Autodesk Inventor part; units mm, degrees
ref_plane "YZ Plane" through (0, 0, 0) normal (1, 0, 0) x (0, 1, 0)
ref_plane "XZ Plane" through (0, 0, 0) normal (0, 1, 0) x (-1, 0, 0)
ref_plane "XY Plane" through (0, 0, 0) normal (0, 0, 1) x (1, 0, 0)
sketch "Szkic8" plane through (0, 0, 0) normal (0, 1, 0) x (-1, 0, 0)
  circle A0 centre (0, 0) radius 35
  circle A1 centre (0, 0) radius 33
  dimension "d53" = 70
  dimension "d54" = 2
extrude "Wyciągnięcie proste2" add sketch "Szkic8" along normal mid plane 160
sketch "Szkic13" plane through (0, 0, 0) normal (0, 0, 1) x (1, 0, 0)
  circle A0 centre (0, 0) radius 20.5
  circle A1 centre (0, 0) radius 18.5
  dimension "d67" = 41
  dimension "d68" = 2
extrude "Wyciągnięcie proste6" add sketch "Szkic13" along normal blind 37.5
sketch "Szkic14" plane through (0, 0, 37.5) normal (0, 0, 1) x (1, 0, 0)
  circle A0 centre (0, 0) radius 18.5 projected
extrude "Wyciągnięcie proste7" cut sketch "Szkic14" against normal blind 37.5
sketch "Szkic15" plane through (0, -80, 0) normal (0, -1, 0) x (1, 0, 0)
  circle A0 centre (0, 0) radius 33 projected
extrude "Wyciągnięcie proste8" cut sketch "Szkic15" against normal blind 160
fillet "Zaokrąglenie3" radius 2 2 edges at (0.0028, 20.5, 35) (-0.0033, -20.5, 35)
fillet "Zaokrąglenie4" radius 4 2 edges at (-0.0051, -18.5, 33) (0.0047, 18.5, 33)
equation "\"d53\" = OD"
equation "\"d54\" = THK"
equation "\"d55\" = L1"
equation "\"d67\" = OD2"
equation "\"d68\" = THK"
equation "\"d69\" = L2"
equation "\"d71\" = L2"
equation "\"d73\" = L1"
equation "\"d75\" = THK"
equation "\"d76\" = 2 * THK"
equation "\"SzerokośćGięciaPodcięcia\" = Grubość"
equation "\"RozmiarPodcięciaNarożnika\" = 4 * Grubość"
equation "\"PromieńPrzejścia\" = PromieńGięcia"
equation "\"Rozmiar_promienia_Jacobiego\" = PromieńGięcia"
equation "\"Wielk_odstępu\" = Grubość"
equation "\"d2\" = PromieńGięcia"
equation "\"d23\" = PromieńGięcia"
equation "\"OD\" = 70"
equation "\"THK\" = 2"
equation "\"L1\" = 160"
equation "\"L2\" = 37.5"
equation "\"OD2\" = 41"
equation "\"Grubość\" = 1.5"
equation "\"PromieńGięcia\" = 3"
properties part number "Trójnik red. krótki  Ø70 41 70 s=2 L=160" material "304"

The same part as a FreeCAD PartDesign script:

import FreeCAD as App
import Part
import Sketcher

V = App.Vector


def edges_at(feature, points):
    """Names of the edges that pass closest to the given points."""
    edges = feature.Shape.Edges
    near = lambda p: min(range(len(edges)), key=lambda i: edges[i].distToShape(Part.Vertex(*p))[0])
    return sorted({f"Edge{near(p) + 1}" for p in points})

doc = App.newDocument("Part")
params = doc.addObject("Spreadsheet::Sheet", "Params")
for row, (alias, value) in enumerate([
    ("sketch1_diameter", "70 mm"),
    ("sketch1_diameter2", "66 mm"),
    ("pad1_length", "160 mm"),
    ("sketch2_diameter", "41 mm"),
    ("sketch2_diameter2", "37 mm"),
    ("pad2_length", "37.5 mm"),
    ("sketch3_diameter", "37 mm"),
    ("pocket1_length", "37.5 mm"),
    ("sketch4_diameter", "66 mm"),
    ("pocket2_length", "160 mm"),
    ("fillet_radius", "2 mm"),
    ("fillet2_radius", "4 mm"),
], start=1):
    params.set(f"A{row}", alias)
    params.set(f"B{row}", "=" + value)
    params.setAlias(f"B{row}", alias)

body = doc.addObject("PartDesign::Body", "Body")

# Sketch on XZ plane
sketch1 = doc.addObject("Sketcher::SketchObject", "Sketch")
body.addObject(sketch1)
sketch1.AttachmentSupport = (doc.XZ_Plane, [""])
sketch1.MapMode = "FlatFace"
sketch1.addGeometry([
    Part.Circle(V(0, 0, 0), V(0, 0, 1), 35),
    Part.Circle(V(0, 0, 0), V(0, 0, 1), 33),
], False)
sketch1.addConstraint([
    Sketcher.Constraint("Coincident", 0, 3, -1, 1),
    Sketcher.Constraint("Coincident", 1, 3, -1, 1),
    Sketcher.Constraint("Diameter", 0, 70.0),
    Sketcher.Constraint("Diameter", 1, 66.0),
])
sketch1.setExpression("Constraints[2]", "Params.sketch1_diameter")
sketch1.setExpression("Constraints[3]", "Params.sketch1_diameter2")
pad1 = doc.addObject("PartDesign::Pad", "Pad")
body.addObject(pad1)
pad1.Profile = sketch1
pad1.setExpression("Length", "Params.pad1_length")
pad1.Midplane = True

# Sketch on XY plane
sketch2 = doc.addObject("Sketcher::SketchObject", "Sketch001")
body.addObject(sketch2)
sketch2.AttachmentSupport = (doc.XY_Plane, [""])
sketch2.MapMode = "FlatFace"
sketch2.addGeometry([
    Part.Circle(V(0, 0, 0), V(0, 0, 1), 20),
    Part.Circle(V(0, 0, 0), V(0, 0, 1), 18),
], False)
sketch2.addConstraint([
    Sketcher.Constraint("Coincident", 0, 3, -1, 1),
    Sketcher.Constraint("Coincident", 1, 3, -1, 1),
    Sketcher.Constraint("Diameter", 0, 41.0),
    Sketcher.Constraint("Diameter", 1, 37.0),
])
sketch2.setExpression("Constraints[2]", "Params.sketch2_diameter")
sketch2.setExpression("Constraints[3]", "Params.sketch2_diameter2")
pad2 = doc.addObject("PartDesign::Pad", "Pad001")
body.addObject(pad2)
pad2.Profile = sketch2
pad2.setExpression("Length", "Params.pad2_length")

# Sketch on XY plane
sketch3 = doc.addObject("Sketcher::SketchObject", "Sketch002")
body.addObject(sketch3)
sketch3.AttachmentSupport = (doc.XY_Plane, [""])
sketch3.MapMode = "FlatFace"
sketch3.AttachmentOffset = App.Placement(V(0, 0, 37.5), App.Rotation())
sketch3.addGeometry(Part.Circle(V(0, 0, 0), V(0, 0, 1), 18), False)
sketch3.addConstraint([
    Sketcher.Constraint("Coincident", 0, 3, -1, 1),
    Sketcher.Constraint("Diameter", 0, 37.0),
])
sketch3.setExpression("Constraints[1]", "Params.sketch3_diameter")
pocket1 = doc.addObject("PartDesign::Pocket", "Pocket")
body.addObject(pocket1)
pocket1.Profile = sketch3
pocket1.setExpression("Length", "Params.pocket1_length")

# Sketch on XZ plane
sketch4 = doc.addObject("Sketcher::SketchObject", "Sketch003")
body.addObject(sketch4)
sketch4.AttachmentSupport = (doc.XZ_Plane, [""])
sketch4.MapMode = "FlatFace"
sketch4.AttachmentOffset = App.Placement(V(0, 0, 80), App.Rotation())
sketch4.addGeometry(Part.Circle(V(0, 0, 0), V(0, 0, 1), 33), False)
sketch4.addConstraint([
    Sketcher.Constraint("Coincident", 0, 3, -1, 1),
    Sketcher.Constraint("Diameter", 0, 66.0),
])
sketch4.setExpression("Constraints[1]", "Params.sketch4_diameter")
pocket2 = doc.addObject("PartDesign::Pocket", "Pocket001")
body.addObject(pocket2)
pocket2.Profile = sketch4
pocket2.setExpression("Length", "Params.pocket2_length")
doc.recompute()

fillet = doc.addObject("PartDesign::Fillet", "Fillet")
body.addObject(fillet)
fillet.Base = (pocket2, edges_at(pocket2, [(0.003, 20.5, 35), (-0.003, -20.5, 35)]))
fillet.setExpression("Radius", "Params.fillet_radius")
doc.recompute()

fillet2 = doc.addObject("PartDesign::Fillet", "Fillet001")
body.addObject(fillet2)
fillet2.Base = (fillet, edges_at(fillet, [(-0.005, -18.5, 33), (0.005, 18.5, 33)]))
fillet2.setExpression("Radius", "Params.fillet2_radius")

doc.recompute()
